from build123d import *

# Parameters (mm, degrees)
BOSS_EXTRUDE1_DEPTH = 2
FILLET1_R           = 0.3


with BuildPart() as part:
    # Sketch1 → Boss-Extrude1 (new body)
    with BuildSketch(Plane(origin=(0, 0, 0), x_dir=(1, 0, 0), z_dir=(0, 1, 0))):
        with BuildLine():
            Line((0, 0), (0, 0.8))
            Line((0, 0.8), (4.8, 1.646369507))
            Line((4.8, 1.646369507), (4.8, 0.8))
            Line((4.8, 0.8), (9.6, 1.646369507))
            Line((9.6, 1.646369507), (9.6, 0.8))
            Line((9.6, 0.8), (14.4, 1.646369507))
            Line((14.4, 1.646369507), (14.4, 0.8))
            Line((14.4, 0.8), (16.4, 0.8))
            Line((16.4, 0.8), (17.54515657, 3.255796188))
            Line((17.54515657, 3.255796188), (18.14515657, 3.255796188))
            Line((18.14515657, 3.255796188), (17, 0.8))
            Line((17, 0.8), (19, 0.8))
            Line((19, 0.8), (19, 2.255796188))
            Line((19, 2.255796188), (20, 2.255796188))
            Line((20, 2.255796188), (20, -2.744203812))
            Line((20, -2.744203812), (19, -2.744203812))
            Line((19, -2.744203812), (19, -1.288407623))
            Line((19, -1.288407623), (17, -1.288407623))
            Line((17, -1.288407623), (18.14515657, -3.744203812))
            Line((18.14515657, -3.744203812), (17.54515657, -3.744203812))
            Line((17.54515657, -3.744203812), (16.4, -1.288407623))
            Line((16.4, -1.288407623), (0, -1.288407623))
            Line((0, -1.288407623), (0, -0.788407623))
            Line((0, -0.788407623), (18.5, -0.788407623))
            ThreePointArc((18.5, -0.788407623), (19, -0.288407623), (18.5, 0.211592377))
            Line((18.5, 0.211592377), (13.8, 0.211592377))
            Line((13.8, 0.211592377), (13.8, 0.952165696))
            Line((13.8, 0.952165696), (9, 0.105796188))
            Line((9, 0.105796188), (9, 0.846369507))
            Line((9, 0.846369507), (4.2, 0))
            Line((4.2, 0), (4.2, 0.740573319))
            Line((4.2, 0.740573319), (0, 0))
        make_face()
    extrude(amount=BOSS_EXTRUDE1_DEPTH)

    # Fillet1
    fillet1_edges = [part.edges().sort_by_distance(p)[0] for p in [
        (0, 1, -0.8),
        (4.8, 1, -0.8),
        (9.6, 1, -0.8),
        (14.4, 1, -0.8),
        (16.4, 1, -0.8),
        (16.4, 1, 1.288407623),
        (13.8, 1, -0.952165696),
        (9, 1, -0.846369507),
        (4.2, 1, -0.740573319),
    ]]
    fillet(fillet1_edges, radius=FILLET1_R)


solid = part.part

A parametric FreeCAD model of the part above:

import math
import FreeCAD as App
import Part
import Sketcher

V = App.Vector
Q = App.Units.Quantity


def edges_at(feature, points):
    """Names of the edges that pass closest to the given points."""
    edges = feature.Shape.Edges
    near = lambda p: min(range(len(edges)), key=lambda i: edges[i].distToShape(Part.Vertex(*p))[0])
    return sorted({f"Edge{near(p) + 1}" for p in points})

doc = App.newDocument("Part")
body = doc.addObject("PartDesign::Body", "Body")

sketch1 = body.newObject("Sketcher::SketchObject", "Sketch")
sketch1.AttachmentSupport = (doc.getObject("XZ_Plane"), [""])
sketch1.MapMode = "FlatFace"
sketch1.addGeometry([
    Part.LineSegment(V(0, -0.8, 0), V(0, 0, 0)),
    Part.LineSegment(V(0, 0, 0), V(4.2, -0.74, 0)),
    Part.LineSegment(V(4.2, -0.74, 0), V(4.2, 0, 0)),
    Part.LineSegment(V(4.2, 0, 0), V(9, -0.85, 0)),
    Part.LineSegment(V(9, -0.85, 0), V(9, -0.11, 0)),
    Part.LineSegment(V(9, -0.11, 0), V(13.8, -0.95, 0)),
    Part.LineSegment(V(13.8, -0.95, 0), V(13.8, -0.21, 0)),
    Part.LineSegment(V(13.8, -0.21, 0), V(18.5, -0.21, 0)),
    Part.ArcOfCircle(Part.Circle(V(18.5, 0.29, 0), V(0, 0, 1), 0.5), math.radians(-90), math.radians(90)),
    Part.LineSegment(V(18.5, 0.79, 0), V(0, 0.79, 0)),
    Part.LineSegment(V(0, 0.79, 0), V(0, 1.29, 0)),
    Part.LineSegment(V(0, 1.29, 0), V(16.4, 1.29, 0)),
    Part.LineSegment(V(16.4, 1.29, 0), V(17.55, 3.74, 0)),
    Part.LineSegment(V(17.55, 3.74, 0), V(18.15, 3.74, 0)),
    Part.LineSegment(V(18.15, 3.74, 0), V(17, 1.29, 0)),
    Part.LineSegment(V(17, 1.29, 0), V(19, 1.29, 0)),
    Part.LineSegment(V(19, 1.29, 0), V(19, 2.74, 0)),
    Part.LineSegment(V(19, 2.74, 0), V(20, 2.74, 0)),
    Part.LineSegment(V(20, 2.74, 0), V(20, -2.26, 0)),
    Part.LineSegment(V(20, -2.26, 0), V(19, -2.26, 0)),
    Part.LineSegment(V(19, -2.26, 0), V(19, -0.8, 0)),
    Part.LineSegment(V(19, -0.8, 0), V(17, -0.8, 0)),
    Part.LineSegment(V(17, -0.8, 0), V(18.15, -3.26, 0)),
    Part.LineSegment(V(18.15, -3.26, 0), V(17.55, -3.26, 0)),
    Part.LineSegment(V(17.55, -3.26, 0), V(16.4, -0.8, 0)),
    Part.LineSegment(V(16.4, -0.8, 0), V(14.4, -0.8, 0)),
    Part.LineSegment(V(14.4, -0.8, 0), V(14.4, -1.65, 0)),
    Part.LineSegment(V(14.4, -1.65, 0), V(9.6, -0.8, 0)),
    Part.LineSegment(V(9.6, -0.8, 0), V(9.6, -1.65, 0)),
    Part.LineSegment(V(9.6, -1.65, 0), V(4.8, -0.8, 0)),
    Part.LineSegment(V(4.8, -0.8, 0), V(4.8, -1.65, 0)),
    Part.LineSegment(V(4.8, -1.65, 0), V(0, -0.8, 0)),
], False)
sketch1.addConstraint([
    Sketcher.Constraint("Coincident", 0, 2, 1, 1),
    Sketcher.Constraint("Coincident", 1, 2, 2, 1),
    Sketcher.Constraint("Coincident", 2, 2, 3, 1),
    Sketcher.Constraint("Coincident", 3, 2, 4, 1),
    Sketcher.Constraint("Coincident", 4, 2, 5, 1),
    Sketcher.Constraint("Coincident", 5, 2, 6, 1),
    Sketcher.Constraint("Coincident", 6, 2, 7, 1),
    Sketcher.Constraint("Tangent", 7, 2, 8, 1),
    Sketcher.Constraint("Tangent", 8, 2, 9, 1),
    Sketcher.Constraint("Coincident", 9, 2, 10, 1),
    Sketcher.Constraint("Coincident", 10, 2, 11, 1),
    Sketcher.Constraint("Coincident", 11, 2, 12, 1),
    Sketcher.Constraint("Coincident", 12, 2, 13, 1),
    Sketcher.Constraint("Coincident", 13, 2, 14, 1),
    Sketcher.Constraint("Coincident", 14, 2, 15, 1),
    Sketcher.Constraint("Coincident", 15, 2, 16, 1),
    Sketcher.Constraint("Coincident", 16, 2, 17, 1),
    Sketcher.Constraint("Coincident", 17, 2, 18, 1),
    Sketcher.Constraint("Coincident", 18, 2, 19, 1),
    Sketcher.Constraint("Coincident", 19, 2, 20, 1),
    Sketcher.Constraint("Coincident", 20, 2, 21, 1),
    Sketcher.Constraint("Coincident", 21, 2, 22, 1),
    Sketcher.Constraint("Coincident", 22, 2, 23, 1),
    Sketcher.Constraint("Coincident", 23, 2, 24, 1),
    Sketcher.Constraint("Coincident", 24, 2, 25, 1),
    Sketcher.Constraint("Coincident", 25, 2, 26, 1),
    Sketcher.Constraint("Coincident", 26, 2, 27, 1),
    Sketcher.Constraint("Coincident", 27, 2, 28, 1),
    Sketcher.Constraint("Coincident", 28, 2, 29, 1),
    Sketcher.Constraint("Coincident", 29, 2, 30, 1),
    Sketcher.Constraint("Coincident", 30, 2, 31, 1),
    Sketcher.Constraint("Coincident", 31, 2, 0, 1),
    Sketcher.Constraint("Vertical", 0),
    Sketcher.Constraint("Vertical", 2),
    Sketcher.Constraint("Vertical", 4),
    Sketcher.Constraint("Vertical", 6),
    Sketcher.Constraint("Horizontal", 7),
    Sketcher.Constraint("Horizontal", 9),
    Sketcher.Constraint("Vertical", 10),
    Sketcher.Constraint("Horizontal", 11),
    Sketcher.Constraint("Horizontal", 13),
    Sketcher.Constraint("Horizontal", 15),
    Sketcher.Constraint("Vertical", 16),
    Sketcher.Constraint("Horizontal", 17),
    Sketcher.Constraint("Vertical", 18),
    Sketcher.Constraint("Horizontal", 19),
    Sketcher.Constraint("Vertical", 20),
    Sketcher.Constraint("Horizontal", 21),
    Sketcher.Constraint("Horizontal", 23),
    Sketcher.Constraint("Horizontal", 25),
    Sketcher.Constraint("Vertical", 26),
    Sketcher.Constraint("Vertical", 28),
    Sketcher.Constraint("Vertical", 30),
    Sketcher.Constraint("Coincident", 0, 2, -1, 1),
    Sketcher.Constraint("PointOnObject", 2, 2, -1),
    Sketcher.Constraint("PointOnObject", 9, 2, -2),
    Sketcher.Constraint("Parallel", 1, 3),
    Sketcher.Constraint("Parallel", 3, 5),
    Sketcher.Constraint("Parallel", 12, 14),
    Sketcher.Constraint("Parallel", 22, 24),
    Sketcher.Constraint("Parallel", 5, 27),
    Sketcher.Constraint("Parallel", 27, 29),
    Sketcher.Constraint("Parallel", 29, 31),
    Sketcher.Constraint("Horizontal", 11, 2, 14, 2),
    Sketcher.Constraint("Horizontal", 21, 2, 24, 2),
    Sketcher.Constraint("Horizontal", 25, 2, 27, 2),
    Sketcher.Constraint("Horizontal", 26, 2, 28, 2),
    Sketcher.Constraint("Horizontal", 27, 2, 29, 2),
    Sketcher.Constraint("Horizontal", 28, 2, 30, 2),
    Sketcher.Constraint("Horizontal", 29, 2, 31, 2),
    Sketcher.Constraint("Vertical", 16, 2, 19, 2),
    Sketcher.Constraint("Vertical", 14, 2, 21, 2),
    Sketcher.Constraint("Vertical", 13, 2, 22, 2),
    Sketcher.Constraint("Vertical", 12, 2, 23, 2),
    Sketcher.Constraint("Equal", 21, 25),
    Sketcher.Constraint("Equal", 2, 4),
    Sketcher.Constraint("Equal", 4, 6),
    Sketcher.Constraint("Equal", 16, 20),
    Sketcher.Constraint("Equal", 3, 5),
    Sketcher.Constraint("Equal", 14, 22),
    Sketcher.Constraint("Equal", 5, 27),
    Sketcher.Constraint("Radius", 8, 0.5),
    Sketcher.Constraint("DistanceX", 15, 1, 15, 2, 2.0),
    Sketcher.Constraint("DistanceX", 17, 1, 17, 2, 1.0),
    Sketcher.Constraint("DistanceY", 18, 2, 18, 1, 5.0),
    Sketcher.Constraint("Angle", 1, Q("-10 deg")),
    Sketcher.Constraint("Angle", 12, Q("65 deg")),
    Sketcher.Constraint("DistanceX", 7, 1, 7, 2, 4.7),
    Sketcher.Constraint("DistanceX", 9, 2, 9, 1, 18.5),
    Sketcher.Constraint("DistanceX", 11, 1, 11, 2, 16.4),
    Sketcher.Constraint("DistanceX", 13, 1, 13, 2, 0.6),
    Sketcher.Constraint("DistanceY", 0, 1, 0, 2, 0.8),
    Sketcher.Constraint("DistanceY", 10, 1, 10, 2, 0.5),
    Sketcher.Constraint("DistanceY", 16, 2, 13, 2, 1.0),
])
pad1 = body.newObject("PartDesign::Pad", "Pad")
pad1.Profile = sketch1
pad1.Length = 2
pad1.Reversed = True
doc.recompute()

fillet = body.newObject("PartDesign::Fillet", "Fillet")
fillet.Base = (pad1, edges_at(pad1, [
    (0, 1, -0.8),
    (4.8, 1, -0.8),
    (9.6, 1, -0.8),
    (14.4, 1, -0.8),
    (16.4, 1, -0.8),
    (16.4, 1, 1.288),
    (13.8, 1, -0.952),
    (9, 1, -0.846),
    (4.2, 1, -0.741),
]))
fillet.Radius = 0.3

doc.recompute()
